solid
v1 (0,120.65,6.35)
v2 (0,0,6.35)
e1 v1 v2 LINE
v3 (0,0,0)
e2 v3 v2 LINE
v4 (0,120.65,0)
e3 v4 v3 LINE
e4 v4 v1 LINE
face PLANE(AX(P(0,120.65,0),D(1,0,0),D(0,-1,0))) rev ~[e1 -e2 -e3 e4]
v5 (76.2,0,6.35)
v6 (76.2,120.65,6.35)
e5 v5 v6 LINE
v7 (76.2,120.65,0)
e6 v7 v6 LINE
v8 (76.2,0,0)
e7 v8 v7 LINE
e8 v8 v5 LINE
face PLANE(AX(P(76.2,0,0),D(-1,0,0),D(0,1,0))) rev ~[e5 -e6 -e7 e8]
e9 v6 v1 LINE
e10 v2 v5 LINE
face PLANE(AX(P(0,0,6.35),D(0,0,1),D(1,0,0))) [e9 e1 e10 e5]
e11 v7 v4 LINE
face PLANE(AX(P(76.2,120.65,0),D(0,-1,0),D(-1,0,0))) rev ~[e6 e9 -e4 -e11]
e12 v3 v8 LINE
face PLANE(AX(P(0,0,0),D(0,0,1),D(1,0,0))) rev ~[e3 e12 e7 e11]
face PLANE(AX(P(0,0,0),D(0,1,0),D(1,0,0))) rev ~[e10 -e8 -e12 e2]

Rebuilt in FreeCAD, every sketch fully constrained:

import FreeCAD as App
import Part
import Sketcher

V = App.Vector
Q = App.Units.Quantity

doc = App.newDocument("Part")
body = doc.addObject("PartDesign::Body", "Body")

# Sketch on XY plane
sketch1 = body.newObject("Sketcher::SketchObject", "Sketch")
sketch1.AttachmentSupport = (doc.getObject("XY_Plane"), [""])
sketch1.MapMode = "FlatFace"
sketch1.addGeometry([
    Part.LineSegment(V(0, 121, 0), V(0, 0, 0)),
    Part.LineSegment(V(0, 0, 0), V(76, 0, 0)),
    Part.LineSegment(V(76, 0, 0), V(76, 121, 0)),
    Part.LineSegment(V(76, 121, 0), V(0, 121, 0)),
], False)
sketch1.addConstraint([
    Sketcher.Constraint("Coincident", 0, 2, 1, 1),
    Sketcher.Constraint("Coincident", 1, 2, 2, 1),
    Sketcher.Constraint("Coincident", 2, 2, 3, 1),
    Sketcher.Constraint("Coincident", 3, 2, 0, 1),
    Sketcher.Constraint("Vertical", 0),
    Sketcher.Constraint("Horizontal", 1),
    Sketcher.Constraint("Vertical", 2),
    Sketcher.Constraint("Horizontal", 3),
    Sketcher.Constraint("Coincident", 0, 2, -1, 1),
    Sketcher.Constraint("DistanceX", 1, 1, 1, 2, Q("3 in")),
    Sketcher.Constraint("DistanceY", 0, 2, 0, 1, Q("4.75 in")),
])
pad1 = body.newObject("PartDesign::Pad", "Pad")
pad1.Profile = sketch1
pad1.Length = Q("0.25 in")

doc.recompute()
